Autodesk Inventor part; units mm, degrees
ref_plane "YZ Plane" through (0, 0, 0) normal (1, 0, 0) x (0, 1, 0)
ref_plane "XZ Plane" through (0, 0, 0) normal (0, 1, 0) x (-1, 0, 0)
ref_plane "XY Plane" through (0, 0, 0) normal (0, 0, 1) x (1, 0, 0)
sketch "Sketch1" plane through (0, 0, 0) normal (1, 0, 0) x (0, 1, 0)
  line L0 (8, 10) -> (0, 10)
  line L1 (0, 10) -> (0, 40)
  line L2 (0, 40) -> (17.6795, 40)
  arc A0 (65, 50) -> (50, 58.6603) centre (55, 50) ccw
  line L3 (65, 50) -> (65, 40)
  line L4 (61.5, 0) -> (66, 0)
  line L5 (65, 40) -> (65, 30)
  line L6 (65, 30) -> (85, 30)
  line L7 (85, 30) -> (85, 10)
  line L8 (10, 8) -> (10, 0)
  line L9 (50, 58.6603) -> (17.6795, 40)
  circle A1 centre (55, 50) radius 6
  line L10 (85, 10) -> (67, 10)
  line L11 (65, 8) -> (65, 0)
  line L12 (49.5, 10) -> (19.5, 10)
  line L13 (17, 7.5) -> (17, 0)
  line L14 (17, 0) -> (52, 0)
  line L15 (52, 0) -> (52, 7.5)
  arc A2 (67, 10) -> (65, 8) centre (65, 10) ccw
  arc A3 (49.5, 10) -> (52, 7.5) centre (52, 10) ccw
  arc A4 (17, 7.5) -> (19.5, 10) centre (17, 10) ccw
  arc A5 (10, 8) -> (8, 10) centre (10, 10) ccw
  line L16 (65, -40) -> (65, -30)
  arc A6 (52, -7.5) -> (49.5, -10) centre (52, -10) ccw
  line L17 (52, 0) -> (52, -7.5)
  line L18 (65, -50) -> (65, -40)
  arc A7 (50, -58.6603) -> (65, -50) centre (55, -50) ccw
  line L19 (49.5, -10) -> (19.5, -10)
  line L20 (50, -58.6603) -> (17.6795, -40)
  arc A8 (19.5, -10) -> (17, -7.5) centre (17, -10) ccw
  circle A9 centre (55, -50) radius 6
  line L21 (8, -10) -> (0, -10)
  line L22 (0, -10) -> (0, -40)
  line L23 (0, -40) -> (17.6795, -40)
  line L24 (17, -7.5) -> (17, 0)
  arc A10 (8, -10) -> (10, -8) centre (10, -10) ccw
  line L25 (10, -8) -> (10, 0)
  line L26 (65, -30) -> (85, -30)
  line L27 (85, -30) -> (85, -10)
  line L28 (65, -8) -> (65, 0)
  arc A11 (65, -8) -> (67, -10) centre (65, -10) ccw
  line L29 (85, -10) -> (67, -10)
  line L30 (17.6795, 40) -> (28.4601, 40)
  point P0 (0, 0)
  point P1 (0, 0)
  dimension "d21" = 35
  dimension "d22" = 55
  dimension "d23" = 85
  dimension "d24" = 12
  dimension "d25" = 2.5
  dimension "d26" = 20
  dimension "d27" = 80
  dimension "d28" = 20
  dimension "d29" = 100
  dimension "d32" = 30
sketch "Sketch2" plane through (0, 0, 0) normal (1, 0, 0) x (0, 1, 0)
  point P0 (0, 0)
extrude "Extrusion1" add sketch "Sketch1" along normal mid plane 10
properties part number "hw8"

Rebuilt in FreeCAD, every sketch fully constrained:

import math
import FreeCAD as App
import Part
import Sketcher
from FreeCAD import Vector
Q = App.Units.Quantity

doc = App.newDocument("Part")
params = doc.addObject("Spreadsheet::Sheet", "Params")
for row, (alias, value) in enumerate([
    ("sketch1_diameter", "12 mm"),
    ("sketch1_radius", "10 mm"),
    ("sketch1_radius2", "2.5 mm"),
    ("sketch1_width", "20 mm"),
    ("sketch1_width2", "30 mm"),
    ("pad1_length", "10 mm"),
], start=1):
    params.set(f"A{row}", alias)
    params.set(f"B{row}", "=" + value)
    params.setAlias(f"B{row}", alias)

body = doc.addObject("PartDesign::Body", "Body")

# Sketch on YZ plane
sketch1 = body.newObject("Sketcher::SketchObject", "Sketch")
sketch1.AttachmentSupport = (doc.getObject("YZ_Plane"), [""])
sketch1.MapMode = "FlatFace"
sketch1.addGeometry([
    Part.LineSegment(Vector(0, 10, 0), Vector(8, 10, 0)),  # 0
    Part.ArcOfCircle(Part.Circle(Vector(10, 10, 0), Vector(0, 0, 1), 2), math.radians(-90), math.radians(180)),  # 1
    Part.LineSegment(Vector(10, 8, 0), Vector(10, -8, 0)),  # 2
    Part.ArcOfCircle(Part.Circle(Vector(10, -10, 0), Vector(0, 0, 1), 2), math.radians(180), math.radians(450)),  # 3
    Part.LineSegment(Vector(8, -10, 0), Vector(0, -10, 0)),  # 4
    Part.LineSegment(Vector(0, -10, 0), Vector(0, -40, 0)),  # 5
    Part.LineSegment(Vector(0, -40, 0), Vector(17.7, -40, 0)),  # 6
    Part.LineSegment(Vector(17.7, -40, 0), Vector(50, -58.7, 0)),  # 7
    Part.ArcOfCircle(Part.Circle(Vector(55, -50, 0), Vector(0, 0, 1), 10), math.radians(-120), math.radians(0)),  # 8
    Part.LineSegment(Vector(65, -50, 0), Vector(65, -30, 0)),  # 9
    Part.LineSegment(Vector(65, -30, 0), Vector(85, -30, 0)),  # 10
    Part.LineSegment(Vector(85, -30, 0), Vector(85, -10, 0)),  # 11
    Part.LineSegment(Vector(85, -10, 0), Vector(67, -10, 0)),  # 12
    Part.ArcOfCircle(Part.Circle(Vector(65, -10, 0), Vector(0, 0, 1), 2), math.radians(90), math.radians(360)),  # 13
    Part.LineSegment(Vector(65, -8, 0), Vector(65, 8, 0)),  # 14
    Part.ArcOfCircle(Part.Circle(Vector(65, 10, 0), Vector(0, 0, 1), 2), math.radians(0), math.radians(270)),  # 15
    Part.LineSegment(Vector(67, 10, 0), Vector(85, 10, 0)),  # 16
    Part.LineSegment(Vector(85, 10, 0), Vector(85, 30, 0)),  # 17
    Part.LineSegment(Vector(85, 30, 0), Vector(65, 30, 0)),  # 18
    Part.LineSegment(Vector(65, 30, 0), Vector(65, 50, 0)),  # 19
    Part.ArcOfCircle(Part.Circle(Vector(55, 50, 0), Vector(0, 0, 1), 10), math.radians(0), math.radians(120)),  # 20
    Part.LineSegment(Vector(50, 58.7, 0), Vector(17.7, 40, 0)),  # 21
    Part.LineSegment(Vector(17.7, 40, 0), Vector(0, 40, 0)),  # 22
    Part.LineSegment(Vector(0, 40, 0), Vector(0, 10, 0)),  # 23
    Part.Circle(Vector(55, -50, 0), Vector(0, 0, 1), 6),  # 24
    Part.LineSegment(Vector(19.5, 10, 0), Vector(49.5, 10, 0)),  # 25
    Part.ArcOfCircle(Part.Circle(Vector(52, 10, 0), Vector(0, 0, 1), 2.5), math.radians(180), math.radians(270)),  # 26
    Part.LineSegment(Vector(52, 7.5, 0), Vector(52, -7.5, 0)),  # 27
    Part.ArcOfCircle(Part.Circle(Vector(52, -10, 0), Vector(0, 0, 1), 2.5), math.radians(90), math.radians(180)),  # 28
    Part.LineSegment(Vector(49.5, -10, 0), Vector(19.5, -10, 0)),  # 29
    Part.ArcOfCircle(Part.Circle(Vector(17, -10, 0), Vector(0, 0, 1), 2.5), math.radians(0), math.radians(90)),  # 30
    Part.LineSegment(Vector(17, -7.5, 0), Vector(17, 7.5, 0)),  # 31
    Part.ArcOfCircle(Part.Circle(Vector(17, 10, 0), Vector(0, 0, 1), 2.5), math.radians(-90), math.radians(0)),  # 32
    Part.Circle(Vector(55, 50, 0), Vector(0, 0, 1), 6),  # 33
], False)
sketch1.addConstraint([
    Sketcher.Constraint("Coincident", 0, 2, 1, 2),
    Sketcher.Constraint("Coincident", 1, 1, 2, 1),
    Sketcher.Constraint("Coincident", 2, 2, 3, 2),
    Sketcher.Constraint("Coincident", 3, 1, 4, 1),
    Sketcher.Constraint("Coincident", 4, 2, 5, 1),
    Sketcher.Constraint("Coincident", 5, 2, 6, 1),
    Sketcher.Constraint("Coincident", 6, 2, 7, 1),
    Sketcher.Constraint("Tangent", 7, 2, 8, 1),
    Sketcher.Constraint("Tangent", 8, 2, 9, 1),
    Sketcher.Constraint("Coincident", 9, 2, 10, 1),
    Sketcher.Constraint("Coincident", 10, 2, 11, 1),
    Sketcher.Constraint("Coincident", 11, 2, 12, 1),
    Sketcher.Constraint("Coincident", 12, 2, 13, 2),
    Sketcher.Constraint("Coincident", 13, 1, 14, 1),
    Sketcher.Constraint("Coincident", 14, 2, 15, 2),
    Sketcher.Constraint("Coincident", 15, 1, 16, 1),
    Sketcher.Constraint("Coincident", 16, 2, 17, 1),
    Sketcher.Constraint("Coincident", 17, 2, 18, 1),
    Sketcher.Constraint("Coincident", 18, 2, 19, 1),
    Sketcher.Constraint("Tangent", 19, 2, 20, 1),
    Sketcher.Constraint("Tangent", 20, 2, 21, 1),
    Sketcher.Constraint("Coincident", 21, 2, 22, 1),
    Sketcher.Constraint("Coincident", 22, 2, 23, 1),
    Sketcher.Constraint("Coincident", 23, 2, 0, 1),
    Sketcher.Constraint("Coincident", 25, 2, 26, 1),
    Sketcher.Constraint("Coincident", 26, 2, 27, 1),
    Sketcher.Constraint("Coincident", 27, 2, 28, 1),
    Sketcher.Constraint("Coincident", 28, 2, 29, 1),
    Sketcher.Constraint("Coincident", 29, 2, 30, 1),
    Sketcher.Constraint("Coincident", 30, 2, 31, 1),
    Sketcher.Constraint("Coincident", 31, 2, 32, 1),
    Sketcher.Constraint("Coincident", 32, 2, 25, 1),
    Sketcher.Constraint("Horizontal", 0),
    Sketcher.Constraint("Vertical", 2),
    Sketcher.Constraint("Horizontal", 4),
    Sketcher.Constraint("Vertical", 5),
    Sketcher.Constraint("Horizontal", 6),
    Sketcher.Constraint("Vertical", 9),
    Sketcher.Constraint("Horizontal", 10),
    Sketcher.Constraint("Vertical", 11),
    Sketcher.Constraint("Horizontal", 12),
    Sketcher.Constraint("Vertical", 14),
    Sketcher.Constraint("Horizontal", 16),
    Sketcher.Constraint("Vertical", 17),
    Sketcher.Constraint("Horizontal", 18),
    Sketcher.Constraint("Vertical", 19),
    Sketcher.Constraint("Horizontal", 22),
    Sketcher.Constraint("Vertical", 23),
    Sketcher.Constraint("Horizontal", 25),
    Sketcher.Constraint("Vertical", 27),
    Sketcher.Constraint("Horizontal", 29),
    Sketcher.Constraint("Vertical", 31),
    Sketcher.Constraint("Coincident", 24, 3, 8, 3),
    Sketcher.Constraint("Coincident", 33, 3, 20, 3),
    Sketcher.Constraint("Equal", 1, 3),
    Sketcher.Constraint("Equal", 3, 13),
    Sketcher.Constraint("Equal", 13, 15),
    Sketcher.Constraint("Equal", 8, 20),
    Sketcher.Constraint("Equal", 26, 28),
    Sketcher.Constraint("Equal", 28, 30),
    Sketcher.Constraint("Equal", 30, 32),
    Sketcher.Constraint("Equal", 24, 33),
    Sketcher.Constraint("Symmetric", 5, 2, 22, 2, -1, 1),
    Sketcher.Constraint("Symmetric", 1, 3, 3, 3, -1),
    Sketcher.Constraint("Symmetric", 13, 3, 15, 3, -1),
    Sketcher.Constraint("Symmetric", 8, 3, 20, 3, -1),
    Sketcher.Constraint("Symmetric", 26, 3, 28, 3, -1),
    Sketcher.Constraint("Symmetric", 30, 3, 32, 3, -1),
    Sketcher.Constraint("Symmetric", 11, 2, 16, 2, -1),
    Sketcher.Constraint("Symmetric", 4, 2, 23, 2, -1),
    Sketcher.Constraint("Horizontal", 3, 3, 13, 3),
    Sketcher.Constraint("Horizontal", 15, 3, 26, 3),
    Sketcher.Constraint("Horizontal", 28, 3, 30, 3),
    Sketcher.Constraint("Horizontal", 32, 3, 0, 2),
    Sketcher.Constraint("Horizontal", 4, 2, 11, 2),
    Sketcher.Constraint("Horizontal", 23, 2, 25, 2),
    Sketcher.Constraint("Horizontal", 12, 2, 28, 2),
    Sketcher.Constraint("Vertical", 3, 3, 1, 1),
    Sketcher.Constraint("Vertical", 15, 3, 8, 2),
    Sketcher.Constraint("Vertical", 9, 2, 13, 1),
    Sketcher.Constraint("Vertical", 7, 2, 20, 2),
    Sketcher.Constraint("Vertical", 28, 3, 26, 2),
    Sketcher.Constraint("Vertical", 32, 3, 30, 2),
    Sketcher.Constraint("Equal", 29, 5),
    Sketcher.Constraint("Equal", 18, 9),
    Sketcher.Constraint("Equal", 9, 11),
    Sketcher.Constraint("Equal", 11, 17),
    Sketcher.Constraint("Diameter", 24, 12.0),
    Sketcher.Constraint("Radius", 8, 10.0),
    Sketcher.Constraint("Radius", 26, 2.5),
    Sketcher.Constraint("DistanceX", 10, 1, 10, 2, 20.0),
    Sketcher.Constraint("DistanceX", 25, 1, 25, 2, 30.0),
    Sketcher.Constraint("Angle", 7, Q("-30 deg")),
    Sketcher.Constraint("DistanceX", -1, 1, 8, 3, 55.0),
    Sketcher.Constraint("DistanceY", 9, 2, -1, 1, 30.0),
    Sketcher.Constraint("Radius", 1, 2.0),
    Sketcher.Constraint("DistanceX", 3, 3, 13, 3, 55.0),
    Sketcher.Constraint("DistanceX", -1, 1, 26, 3, 52.0),
])
sketch1.setExpression("Constraints[87]", "Params.sketch1_diameter")
sketch1.setExpression("Constraints[88]", "Params.sketch1_radius")
sketch1.setExpression("Constraints[89]", "Params.sketch1_radius2")
sketch1.setExpression("Constraints[90]", "Params.sketch1_width")
sketch1.setExpression("Constraints[91]", "Params.sketch1_width2")
pad1 = body.newObject("PartDesign::Pad", "Pad")
pad1.Profile = sketch1
pad1.setExpression("Length", "Params.pad1_length")
pad1.Midplane = True

doc.recompute()
